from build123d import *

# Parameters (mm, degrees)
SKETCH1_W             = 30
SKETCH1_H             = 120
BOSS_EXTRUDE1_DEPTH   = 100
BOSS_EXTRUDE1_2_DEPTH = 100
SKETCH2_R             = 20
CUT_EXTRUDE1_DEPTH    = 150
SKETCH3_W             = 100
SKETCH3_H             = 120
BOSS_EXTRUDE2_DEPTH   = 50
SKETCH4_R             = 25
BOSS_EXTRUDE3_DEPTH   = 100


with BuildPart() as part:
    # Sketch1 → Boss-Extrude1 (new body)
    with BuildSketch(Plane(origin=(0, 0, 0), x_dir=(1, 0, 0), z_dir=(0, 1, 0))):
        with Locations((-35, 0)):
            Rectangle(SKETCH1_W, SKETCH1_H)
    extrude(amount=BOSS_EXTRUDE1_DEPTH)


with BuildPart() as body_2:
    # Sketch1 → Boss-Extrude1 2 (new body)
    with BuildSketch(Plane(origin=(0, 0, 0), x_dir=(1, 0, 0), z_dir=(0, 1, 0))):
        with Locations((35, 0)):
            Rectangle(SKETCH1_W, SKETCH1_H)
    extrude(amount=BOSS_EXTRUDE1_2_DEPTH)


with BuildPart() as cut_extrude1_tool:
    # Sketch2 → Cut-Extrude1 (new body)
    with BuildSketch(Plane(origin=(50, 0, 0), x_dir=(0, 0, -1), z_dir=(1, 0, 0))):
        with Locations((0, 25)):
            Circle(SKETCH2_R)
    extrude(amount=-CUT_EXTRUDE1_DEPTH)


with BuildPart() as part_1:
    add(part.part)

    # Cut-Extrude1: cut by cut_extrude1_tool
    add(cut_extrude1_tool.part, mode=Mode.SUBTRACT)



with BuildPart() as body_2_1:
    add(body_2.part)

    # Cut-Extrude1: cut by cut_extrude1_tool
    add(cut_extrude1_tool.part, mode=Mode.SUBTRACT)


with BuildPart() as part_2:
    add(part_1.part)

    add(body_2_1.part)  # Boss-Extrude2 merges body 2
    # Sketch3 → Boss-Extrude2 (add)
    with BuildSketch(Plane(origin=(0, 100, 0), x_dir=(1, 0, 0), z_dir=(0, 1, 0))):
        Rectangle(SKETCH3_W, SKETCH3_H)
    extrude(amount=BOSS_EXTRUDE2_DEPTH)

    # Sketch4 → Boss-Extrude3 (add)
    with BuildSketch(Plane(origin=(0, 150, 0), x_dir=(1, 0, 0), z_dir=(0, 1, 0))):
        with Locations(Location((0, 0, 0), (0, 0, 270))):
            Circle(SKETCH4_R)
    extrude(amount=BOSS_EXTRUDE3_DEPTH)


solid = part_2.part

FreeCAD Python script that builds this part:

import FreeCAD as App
import Part
import Sketcher
from FreeCAD import Vector

doc = App.newDocument("Part")
body = doc.addObject("PartDesign::Body", "Body")

# Sketch on XZ plane
sketch1 = doc.addObject("Sketcher::SketchObject", "Sketch")
body.addObject(sketch1)
sketch1.AttachmentSupport = (doc.XZ_Plane, [""])
sketch1.MapMode = "FlatFace"
sketch1.addGeometry([
    Part.LineSegment(Vector(-50, -60, 0), Vector(-50, 60, 0)),
    Part.LineSegment(Vector(-50, 60, 0), Vector(-20, 60, 0)),
    Part.LineSegment(Vector(-20, 60, 0), Vector(-20, -60, 0)),
    Part.LineSegment(Vector(-20, -60, 0), Vector(-50, -60, 0)),
], False)
sketch1.addConstraint([
    Sketcher.Constraint("Coincident", 0, 2, 1, 1),
    Sketcher.Constraint("Coincident", 1, 2, 2, 1),
    Sketcher.Constraint("Coincident", 2, 2, 3, 1),
    Sketcher.Constraint("Coincident", 3, 2, 0, 1),
    Sketcher.Constraint("Vertical", 0),
    Sketcher.Constraint("Horizontal", 1),
    Sketcher.Constraint("Vertical", 2),
    Sketcher.Constraint("Horizontal", 3),
    Sketcher.Constraint("DistanceX", 1, 1, 1, 2, 30.0),
    Sketcher.Constraint("DistanceY", 0, 1, 0, 2, 120.0),
    Sketcher.Constraint("DistanceX", 0, 2, -1, 1, 50.0),
    Sketcher.Constraint("DistanceY", -1, 1, 0, 2, 60.0),
])
pad1 = doc.addObject("PartDesign::Pad", "Pad")
body.addObject(pad1)
pad1.Profile = sketch1
pad1.Length = 100
pad1.Reversed = True
body2 = doc.addObject("PartDesign::Body", "Body001")

# Sketch on XZ plane
sketch2 = doc.addObject("Sketcher::SketchObject", "Sketch001")
body2.addObject(sketch2)
sketch2.AttachmentSupport = (doc.getObject("XZ_Plane001"), [""])
sketch2.MapMode = "FlatFace"
sketch2.addGeometry([
    Part.LineSegment(Vector(20, -60, 0), Vector(20, 60, 0)),
    Part.LineSegment(Vector(20, 60, 0), Vector(50, 60, 0)),
    Part.LineSegment(Vector(50, 60, 0), Vector(50, -60, 0)),
    Part.LineSegment(Vector(50, -60, 0), Vector(20, -60, 0)),
], False)
sketch2.addConstraint([
    Sketcher.Constraint("Coincident", 0, 2, 1, 1),
    Sketcher.Constraint("Coincident", 1, 2, 2, 1),
    Sketcher.Constraint("Coincident", 2, 2, 3, 1),
    Sketcher.Constraint("Coincident", 3, 2, 0, 1),
    Sketcher.Constraint("Vertical", 0),
    Sketcher.Constraint("Horizontal", 1),
    Sketcher.Constraint("Vertical", 2),
    Sketcher.Constraint("Horizontal", 3),
    Sketcher.Constraint("DistanceX", 1, 1, 1, 2, 30.0),
    Sketcher.Constraint("DistanceY", 0, 1, 0, 2, 120.0),
    Sketcher.Constraint("DistanceX", -1, 1, 0, 2, 20.0),
    Sketcher.Constraint("DistanceY", -1, 1, 0, 2, 60.0),
])
pad2 = doc.addObject("PartDesign::Pad", "Pad001")
body2.addObject(pad2)
pad2.Profile = sketch2
pad2.Length = 100
pad2.Reversed = True
body3 = doc.addObject("PartDesign::Body", "Body002")

# Sketch on YZ plane
sketch3 = doc.addObject("Sketcher::SketchObject", "Sketch002")
body3.addObject(sketch3)
sketch3.AttachmentSupport = (doc.getObject("YZ_Plane002"), [""])
sketch3.MapMode = "FlatFace"
sketch3.AttachmentOffset = App.Placement(Vector(0, 0, 50), App.Rotation())
sketch3.addGeometry(Part.Circle(Vector(25, 0, 0), Vector(0, 0, 1), 20), False)
sketch3.addConstraint([
    Sketcher.Constraint("PointOnObject", 0, 3, -1),
    Sketcher.Constraint("Diameter", 0, 40.0),
    Sketcher.Constraint("DistanceX", -1, 1, 0, 3, 25.0),
])
pad3 = doc.addObject("PartDesign::Pad", "Pad002")
body3.addObject(pad3)
pad3.Profile = sketch3
pad3.Length = 150
pad3.Reversed = True
doc.recompute()

body4 = doc.addObject("PartDesign::Body", "Body003")
body4.BaseFeature = body3
boolean = doc.addObject("PartDesign::Boolean", "Boolean")
body.addObject(boolean)
boolean.Type = "Cut"
boolean.addObjects([body4])
doc.recompute()

boolean2 = doc.addObject("PartDesign::Boolean", "Boolean001")
body2.addObject(boolean2)
boolean2.Type = "Cut"
boolean2.addObjects([body3])
body.AllowCompound = True
doc.recompute()

boolean3 = doc.addObject("PartDesign::Boolean", "Boolean002")
body.addObject(boolean3)
boolean3.Type = "Fuse"
boolean3.addObjects([body2])

# Sketch on XZ plane
sketch4 = doc.addObject("Sketcher::SketchObject", "Sketch003")
body.addObject(sketch4)
sketch4.AttachmentSupport = (doc.XZ_Plane, [""])
sketch4.MapMode = "FlatFace"
sketch4.AttachmentOffset = App.Placement(Vector(0, 0, -100), App.Rotation())
sketch4.addGeometry([
    Part.LineSegment(Vector(-50, -60, 0), Vector(-50, 60, 0)),
    Part.LineSegment(Vector(-50, 60, 0), Vector(50, 60, 0)),
    Part.LineSegment(Vector(50, 60, 0), Vector(50, -60, 0)),
    Part.LineSegment(Vector(50, -60, 0), Vector(-50, -60, 0)),
], False)
sketch4.addConstraint([
    Sketcher.Constraint("Coincident", 0, 2, 1, 1),
    Sketcher.Constraint("Coincident", 1, 2, 2, 1),
    Sketcher.Constraint("Coincident", 2, 2, 3, 1),
    Sketcher.Constraint("Coincident", 3, 2, 0, 1),
    Sketcher.Constraint("Vertical", 0),
    Sketcher.Constraint("Horizontal", 1),
    Sketcher.Constraint("Vertical", 2),
    Sketcher.Constraint("Horizontal", 3),
    Sketcher.Constraint("Symmetric", 0, 2, 2, 2, -1, 1),
    Sketcher.Constraint("DistanceX", 1, 1, 1, 2, 100.0),
    Sketcher.Constraint("DistanceY", 0, 1, 0, 2, 120.0),
])
pad4 = doc.addObject("PartDesign::Pad", "Pad003")
body.addObject(pad4)
pad4.Profile = sketch4
pad4.Length = 50
pad4.Reversed = True

# Sketch on XZ plane
sketch5 = doc.addObject("Sketcher::SketchObject", "Sketch004")
body.addObject(sketch5)
sketch5.AttachmentSupport = (doc.XZ_Plane, [""])
sketch5.MapMode = "FlatFace"
sketch5.AttachmentOffset = App.Placement(Vector(0, 0, -150), App.Rotation())
sketch5.addGeometry(Part.Circle(Vector(0, 0, 0), Vector(0, 0, 1), 25), False)
sketch5.addConstraint([
    Sketcher.Constraint("Coincident", 0, 3, -1, 1),
    Sketcher.Constraint("Diameter", 0, 50.0),
])
pad5 = doc.addObject("PartDesign::Pad", "Pad004")
body.addObject(pad5)
pad5.Profile = sketch5
pad5.Length = 100
pad5.Reversed = True

doc.recompute()
